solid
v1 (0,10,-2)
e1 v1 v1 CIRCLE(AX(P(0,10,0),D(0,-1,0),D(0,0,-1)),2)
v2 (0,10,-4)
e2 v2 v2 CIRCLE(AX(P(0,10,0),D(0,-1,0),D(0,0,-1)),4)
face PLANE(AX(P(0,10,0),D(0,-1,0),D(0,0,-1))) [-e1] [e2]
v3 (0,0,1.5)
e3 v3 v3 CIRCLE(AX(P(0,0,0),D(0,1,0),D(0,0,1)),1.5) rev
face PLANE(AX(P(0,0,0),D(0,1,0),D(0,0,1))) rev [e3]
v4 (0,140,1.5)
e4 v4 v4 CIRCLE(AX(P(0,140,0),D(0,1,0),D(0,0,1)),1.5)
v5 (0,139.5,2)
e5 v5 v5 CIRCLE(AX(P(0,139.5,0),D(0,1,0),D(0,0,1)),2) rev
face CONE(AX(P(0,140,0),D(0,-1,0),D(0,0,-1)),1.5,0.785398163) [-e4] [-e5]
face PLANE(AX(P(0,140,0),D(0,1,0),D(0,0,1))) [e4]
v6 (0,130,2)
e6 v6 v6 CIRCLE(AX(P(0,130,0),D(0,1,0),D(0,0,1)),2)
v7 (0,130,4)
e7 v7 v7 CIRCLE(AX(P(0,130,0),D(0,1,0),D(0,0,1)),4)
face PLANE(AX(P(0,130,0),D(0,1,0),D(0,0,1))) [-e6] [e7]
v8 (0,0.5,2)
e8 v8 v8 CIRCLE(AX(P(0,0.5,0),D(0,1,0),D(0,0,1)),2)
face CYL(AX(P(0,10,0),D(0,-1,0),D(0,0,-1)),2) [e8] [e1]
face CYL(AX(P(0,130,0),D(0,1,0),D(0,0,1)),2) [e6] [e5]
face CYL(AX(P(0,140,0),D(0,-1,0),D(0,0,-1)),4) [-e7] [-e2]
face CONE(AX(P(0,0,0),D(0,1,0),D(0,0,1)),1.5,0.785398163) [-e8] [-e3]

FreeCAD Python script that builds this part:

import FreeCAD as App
import Part
import Sketcher
Q = App.Units.Quantity


def edges_at(feature, points):
    """Names of the edges that pass closest to the given points."""
    edges = feature.Shape.Edges
    near = lambda p: min(range(len(edges)), key=lambda i: edges[i].distToShape(Part.Vertex(*p))[0])
    return sorted({f"Edge{near(p) + 1}" for p in points})

doc = App.newDocument("Part")
params = doc.addObject("Spreadsheet::Sheet", "Params")
for row, (alias, value) in enumerate([
    ("sketch1_diameter", "8 mm"),
    ("pad1_length", "140 mm"),
    ("sketch2_diameter", "8 mm"),
    ("sketch2_diameter2", "4 mm"),
    ("pocket1_length", "10 mm"),
    ("sketch3_diameter", "8 mm"),
    ("sketch3_diameter2", "4 mm"),
    ("pocket2_length", "10 mm"),
    ("chamfer_size", "0.5 mm"),
], start=1):
    params.set(f"A{row}", alias)
    params.set(f"B{row}", "=" + value)
    params.setAlias(f"B{row}", alias)

body = doc.addObject("PartDesign::Body", "Body")

sketch1 = body.newObject("Sketcher::SketchObject", "Sketch")
sketch1.AttachmentSupport = (doc.getObject("XZ_Plane"), [""])
sketch1.MapMode = "FlatFace"
sketch1.addGeometry(Part.Circle(App.Vector(0, 0, 0), App.Vector(0, 0, 1), 4), False)
sketch1.addConstraint(Sketcher.Constraint("Coincident", 0, 3, -1, 1))
sketch1.addConstraint(Sketcher.Constraint("Diameter", 0, Q("8 mm")))
sketch1.setExpression("Constraints[1]", "Params.sketch1_diameter")
pad1 = body.newObject("PartDesign::Pad", "Pad")
pad1.Profile = sketch1
pad1.setExpression("Length", "Params.pad1_length")
pad1.Reversed = True

sketch2 = body.newObject("Sketcher::SketchObject", "Sketch001")
sketch2.AttachmentSupport = (doc.getObject("XZ_Plane"), [""])
sketch2.MapMode = "FlatFace"
sketch2.AttachmentOffset = App.Placement(App.Vector(0, 0, -130), App.Rotation())
sketch2.addGeometry(Part.Circle(App.Vector(0, 0, 0), App.Vector(0, 0, 1), 4), False)
sketch2.addGeometry(Part.Circle(App.Vector(0, 0, 0), App.Vector(0, 0, 1), 2), False)
sketch2.addConstraint(Sketcher.Constraint("Coincident", 0, 3, -1, 1))
sketch2.addConstraint(Sketcher.Constraint("Coincident", 1, 3, -1, 1))
sketch2.addConstraint(Sketcher.Constraint("Diameter", 0, Q("8 mm")))
sketch2.addConstraint(Sketcher.Constraint("Diameter", 1, Q("4 mm")))
sketch2.setExpression("Constraints[2]", "Params.sketch2_diameter")
sketch2.setExpression("Constraints[3]", "Params.sketch2_diameter2")
pocket1 = body.newObject("PartDesign::Pocket", "Pocket")
pocket1.Profile = sketch2
pocket1.setExpression("Length", "Params.pocket1_length")

sketch3 = body.newObject("Sketcher::SketchObject", "Sketch002")
sketch3.AttachmentSupport = (doc.getObject("XZ_Plane"), [""])
sketch3.MapMode = "FlatFace"
sketch3.addGeometry(Part.Circle(App.Vector(0, 0, 0), App.Vector(0, 0, 1), 4), False)
sketch3.addGeometry(Part.Circle(App.Vector(0, 0, 0), App.Vector(0, 0, 1), 2), False)
sketch3.addConstraint(Sketcher.Constraint("Coincident", 0, 3, -1, 1))
sketch3.addConstraint(Sketcher.Constraint("Coincident", 1, 3, -1, 1))
sketch3.addConstraint(Sketcher.Constraint("Diameter", 0, Q("8 mm")))
sketch3.addConstraint(Sketcher.Constraint("Diameter", 1, Q("4 mm")))
sketch3.setExpression("Constraints[2]", "Params.sketch3_diameter")
sketch3.setExpression("Constraints[3]", "Params.sketch3_diameter2")
pocket2 = body.newObject("PartDesign::Pocket", "Pocket001")
pocket2.Profile = sketch3
pocket2.setExpression("Length", "Params.pocket2_length")
doc.recompute()

chamfer = body.newObject("PartDesign::Chamfer", "Chamfer")
chamfer.Base = (pocket2, edges_at(pocket2, [(0, 0, -2), (0, 140, -2)]))
chamfer.setExpression("Size", "Params.chamfer_size")

doc.recompute()
